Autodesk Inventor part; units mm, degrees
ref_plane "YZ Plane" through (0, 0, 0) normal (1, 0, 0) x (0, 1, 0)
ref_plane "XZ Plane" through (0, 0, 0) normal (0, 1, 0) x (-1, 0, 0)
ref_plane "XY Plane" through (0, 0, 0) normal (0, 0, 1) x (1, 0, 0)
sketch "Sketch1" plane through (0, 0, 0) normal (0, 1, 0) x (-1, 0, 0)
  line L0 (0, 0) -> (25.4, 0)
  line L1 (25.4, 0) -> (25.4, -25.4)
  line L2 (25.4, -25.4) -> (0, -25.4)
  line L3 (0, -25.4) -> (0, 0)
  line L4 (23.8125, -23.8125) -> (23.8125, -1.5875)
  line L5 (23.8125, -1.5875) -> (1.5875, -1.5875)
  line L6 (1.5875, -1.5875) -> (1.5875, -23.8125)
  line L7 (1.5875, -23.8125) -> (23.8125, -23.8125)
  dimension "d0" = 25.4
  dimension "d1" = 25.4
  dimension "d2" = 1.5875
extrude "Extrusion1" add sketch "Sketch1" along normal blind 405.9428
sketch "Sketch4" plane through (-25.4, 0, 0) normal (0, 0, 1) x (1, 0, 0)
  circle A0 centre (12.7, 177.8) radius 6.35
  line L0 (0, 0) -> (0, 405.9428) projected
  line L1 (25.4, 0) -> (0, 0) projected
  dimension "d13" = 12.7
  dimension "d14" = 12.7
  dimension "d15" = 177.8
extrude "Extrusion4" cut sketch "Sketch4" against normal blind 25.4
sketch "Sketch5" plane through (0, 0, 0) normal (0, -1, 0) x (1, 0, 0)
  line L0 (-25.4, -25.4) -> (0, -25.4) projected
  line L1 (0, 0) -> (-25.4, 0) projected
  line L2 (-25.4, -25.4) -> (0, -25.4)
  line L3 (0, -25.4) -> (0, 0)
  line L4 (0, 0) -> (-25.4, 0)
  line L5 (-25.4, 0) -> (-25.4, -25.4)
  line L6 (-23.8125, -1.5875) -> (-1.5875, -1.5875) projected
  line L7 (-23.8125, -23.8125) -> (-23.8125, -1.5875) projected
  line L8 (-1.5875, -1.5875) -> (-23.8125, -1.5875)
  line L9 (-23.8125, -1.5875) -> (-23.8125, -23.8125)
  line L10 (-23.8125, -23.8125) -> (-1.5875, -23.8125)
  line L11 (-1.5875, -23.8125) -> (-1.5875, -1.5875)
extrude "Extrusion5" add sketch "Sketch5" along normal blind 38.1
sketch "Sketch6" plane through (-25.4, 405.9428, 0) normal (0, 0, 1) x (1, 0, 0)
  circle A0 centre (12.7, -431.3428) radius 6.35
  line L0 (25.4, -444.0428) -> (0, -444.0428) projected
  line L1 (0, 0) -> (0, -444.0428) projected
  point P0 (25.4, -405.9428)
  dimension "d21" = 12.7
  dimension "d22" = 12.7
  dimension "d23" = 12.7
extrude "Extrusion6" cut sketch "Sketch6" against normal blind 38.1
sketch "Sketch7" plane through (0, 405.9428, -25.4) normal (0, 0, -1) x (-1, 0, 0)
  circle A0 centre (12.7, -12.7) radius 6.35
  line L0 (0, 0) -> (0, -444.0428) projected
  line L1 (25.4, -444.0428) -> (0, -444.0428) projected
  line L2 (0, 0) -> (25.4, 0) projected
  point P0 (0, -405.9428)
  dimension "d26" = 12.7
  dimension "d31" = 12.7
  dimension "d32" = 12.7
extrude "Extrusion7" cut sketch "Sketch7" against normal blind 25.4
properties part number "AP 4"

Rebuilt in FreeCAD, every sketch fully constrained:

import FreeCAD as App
import Part
import Sketcher
from FreeCAD import Vector
Q = App.Units.Quantity


def add_polygon(sketch, points):
    """Adds a closed chain of lines whose ends are joined by coincident constraints."""
    first, n = sketch.GeometryCount, len(points)
    for a, b in zip(points, points[1:] + points[:1]):
        sketch.addGeometry(Part.LineSegment(App.Vector(*a, 0), App.Vector(*b, 0)), False)
    for i in range(n):
        sketch.addConstraint(Sketcher.Constraint("Coincident", first + i, 2, first + (i + 1) % n, 1))

doc = App.newDocument("Part")
params = doc.addObject("Spreadsheet::Sheet", "Params")
for row, (alias, value) in enumerate([
    ("sketch1_width", "1 in"),
    ("pad1_length", "15.982 in"),
    ("sketch2_diameter", "0.5 in"),
    ("pocket1_length", "1 in"),
    ("sketch3_width", "1 in"),
    ("sketch3_width2", "0.875 in"),
    ("pad2_length", "1.5 in"),
    ("sketch4_diameter", "0.5 in"),
    ("pocket2_length", "1.5 in"),
    ("sketch5_diameter", "0.5 in"),
    ("pocket3_length", "1 in"),
], start=1):
    params.set(f"A{row}", alias)
    params.set(f"B{row}", "=" + value)
    params.setAlias(f"B{row}", alias)

body = doc.addObject("PartDesign::Body", "Body")

# Sketch on XZ plane
sketch1 = body.newObject("Sketcher::SketchObject", "Sketch")
sketch1.AttachmentSupport = (doc.getObject("XZ_Plane"), [""])
sketch1.MapMode = "FlatFace"
add_polygon(sketch1, [(-25, 0), (0, 0), (0, -25), (-25, -25)])  # lines 0-3
add_polygon(sketch1, [(-24, -2), (-24, -24), (-2, -24), (-2, -2)])  # lines 4-7
sketch1.addConstraint(Sketcher.Constraint("Horizontal", 0))
sketch1.addConstraint(Sketcher.Constraint("Vertical", 1))
sketch1.addConstraint(Sketcher.Constraint("Horizontal", 2))
sketch1.addConstraint(Sketcher.Constraint("Vertical", 3))
sketch1.addConstraint(Sketcher.Constraint("Vertical", 4))
sketch1.addConstraint(Sketcher.Constraint("Horizontal", 5))
sketch1.addConstraint(Sketcher.Constraint("Vertical", 6))
sketch1.addConstraint(Sketcher.Constraint("Horizontal", 7))
sketch1.addConstraint(Sketcher.Constraint("Coincident", 0, 2, -1, 1))
sketch1.addConstraint(Sketcher.Constraint("Equal", 2, 1))
sketch1.addConstraint(Sketcher.Constraint("Equal", 7, 4))
sketch1.addConstraint(Sketcher.Constraint("DistanceX", 0, 1, 0, 2, Q("1 in")))
sketch1.addConstraint(Sketcher.Constraint("DistanceX", 5, 2, -1, 1, Q("0.0625 in")))
sketch1.addConstraint(Sketcher.Constraint("DistanceY", 6, 2, -1, 1, Q("0.0625 in")))
sketch1.addConstraint(Sketcher.Constraint("DistanceX", 2, 2, 4, 2, Q("0.0625 in")))
sketch1.setExpression("Constraints[19]", "Params.sketch1_width")
pad1 = body.newObject("PartDesign::Pad", "Pad")
pad1.Profile = sketch1
pad1.setExpression("Length", "Params.pad1_length")
pad1.Reversed = True

# Sketch on XY plane
sketch2 = body.newObject("Sketcher::SketchObject", "Sketch001")
sketch2.AttachmentSupport = (doc.getObject("XY_Plane"), [""])
sketch2.MapMode = "FlatFace"
sketch2.addGeometry(Part.Circle(Vector(-13, 178, 0), Vector(0, 0, 1), 6), False)
sketch2.addConstraint(Sketcher.Constraint("Diameter", 0, Q("0.5 in")))
sketch2.addConstraint(Sketcher.Constraint("DistanceY", -1, 1, 0, 3, Q("7 in")))
sketch2.addConstraint(Sketcher.Constraint("DistanceX", 0, 3, -1, 1, Q("0.5 in")))
sketch2.setExpression("Constraints[0]", "Params.sketch2_diameter")
pocket1 = body.newObject("PartDesign::Pocket", "Pocket")
pocket1.Profile = sketch2
pocket1.setExpression("Length", "Params.pocket1_length")

# Sketch on XZ plane
sketch3 = body.newObject("Sketcher::SketchObject", "Sketch002")
sketch3.AttachmentSupport = (doc.getObject("XZ_Plane"), [""])
sketch3.MapMode = "FlatFace"
add_polygon(sketch3, [(-25, 0), (-25, -25), (0, -25), (0, 0)])  # lines 0-3
add_polygon(sketch3, [(-24, -24), (-24, -2), (-2, -2), (-2, -24)])  # lines 4-7
sketch3.addConstraint(Sketcher.Constraint("Vertical", 0))
sketch3.addConstraint(Sketcher.Constraint("Horizontal", 1))
sketch3.addConstraint(Sketcher.Constraint("Vertical", 2))
sketch3.addConstraint(Sketcher.Constraint("Horizontal", 3))
sketch3.addConstraint(Sketcher.Constraint("Vertical", 4))
sketch3.addConstraint(Sketcher.Constraint("Horizontal", 5))
sketch3.addConstraint(Sketcher.Constraint("Vertical", 6))
sketch3.addConstraint(Sketcher.Constraint("Horizontal", 7))
sketch3.addConstraint(Sketcher.Constraint("Coincident", 2, 2, -1, 1))
sketch3.addConstraint(Sketcher.Constraint("Equal", 3, 0))
sketch3.addConstraint(Sketcher.Constraint("Equal", 7, 4))
sketch3.addConstraint(Sketcher.Constraint("DistanceX", 1, 1, 1, 2, Q("1 in")))
sketch3.addConstraint(Sketcher.Constraint("DistanceX", 5, 1, 5, 2, Q("0.875 in")))
sketch3.addConstraint(Sketcher.Constraint("DistanceX", 4, 2, -1, 1, Q("0.9375 in")))
sketch3.addConstraint(Sketcher.Constraint("DistanceY", 4, 2, -1, 1, Q("0.0625 in")))
sketch3.setExpression("Constraints[19]", "Params.sketch3_width")
sketch3.setExpression("Constraints[20]", "Params.sketch3_width2")
pad2 = body.newObject("PartDesign::Pad", "Pad001")
pad2.Profile = sketch3
pad2.setExpression("Length", "Params.pad2_length")

# Sketch on XY plane
sketch4 = body.newObject("Sketcher::SketchObject", "Sketch003")
sketch4.AttachmentSupport = (doc.getObject("XY_Plane"), [""])
sketch4.MapMode = "FlatFace"
sketch4.addGeometry(Part.Circle(Vector(-13, -25, 0), Vector(0, 0, 1), 6), False)
sketch4.addConstraint(Sketcher.Constraint("Diameter", 0, Q("0.5 in")))
sketch4.addConstraint(Sketcher.Constraint("DistanceX", 0, 3, -1, 1, Q("0.5 in")))
sketch4.addConstraint(Sketcher.Constraint("DistanceY", 0, 3, -1, 1, Q("1 in")))
sketch4.setExpression("Constraints[0]", "Params.sketch4_diameter")
pocket2 = body.newObject("PartDesign::Pocket", "Pocket001")
pocket2.Profile = sketch4
pocket2.setExpression("Length", "Params.pocket2_length")

# Sketch on XY plane
sketch5 = body.newObject("Sketcher::SketchObject", "Sketch004")
sketch5.AttachmentSupport = (doc.getObject("XY_Plane"), [""])
sketch5.MapMode = "FlatFace"
sketch5.AttachmentOffset = App.Placement(Vector(0, 0, -1 * 25.4), App.Rotation())
sketch5.addGeometry(Part.Circle(Vector(-13, 393, 0), Vector(0, 0, 1), 6), False)
sketch5.addConstraint(Sketcher.Constraint("Diameter", 0, Q("0.5 in")))
sketch5.addConstraint(Sketcher.Constraint("DistanceX", 0, 3, -1, 1, Q("0.5 in")))
sketch5.addConstraint(Sketcher.Constraint("DistanceY", -1, 1, 0, 3, Q("15.482 in")))
sketch5.setExpression("Constraints[0]", "Params.sketch5_diameter")
pocket3 = body.newObject("PartDesign::Pocket", "Pocket002")
pocket3.Profile = sketch5
pocket3.setExpression("Length", "Params.pocket3_length")
pocket3.Reversed = True

doc.recompute()
